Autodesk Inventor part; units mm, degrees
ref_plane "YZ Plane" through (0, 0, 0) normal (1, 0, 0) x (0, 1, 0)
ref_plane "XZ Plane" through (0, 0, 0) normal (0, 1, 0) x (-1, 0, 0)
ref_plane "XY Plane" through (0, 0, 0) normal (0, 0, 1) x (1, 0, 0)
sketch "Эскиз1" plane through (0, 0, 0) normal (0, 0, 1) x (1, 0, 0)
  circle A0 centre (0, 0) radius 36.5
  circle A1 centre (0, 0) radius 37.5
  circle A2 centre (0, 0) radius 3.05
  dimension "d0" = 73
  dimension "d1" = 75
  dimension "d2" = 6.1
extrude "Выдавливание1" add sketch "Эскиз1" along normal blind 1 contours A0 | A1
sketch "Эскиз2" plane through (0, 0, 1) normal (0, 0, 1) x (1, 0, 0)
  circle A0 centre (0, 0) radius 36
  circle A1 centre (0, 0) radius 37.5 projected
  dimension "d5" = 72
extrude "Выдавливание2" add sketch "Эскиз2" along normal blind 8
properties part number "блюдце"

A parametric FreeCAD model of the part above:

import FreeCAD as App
import Part
import Sketcher

V = App.Vector
Q = App.Units.Quantity

doc = App.newDocument("Part")
body = doc.addObject("PartDesign::Body", "Body")

sketch1 = body.newObject("Sketcher::SketchObject", "Sketch")
sketch1.AttachmentSupport = (doc.getObject("XY_Plane"), [""])
sketch1.MapMode = "FlatFace"
sketch1.addGeometry([
    Part.Circle(V(0, 0, 0), V(0, 0, 1), 37.5),
    Part.Circle(V(0, 0, 0), V(0, 0, 1), 3),
], False)
sketch1.addConstraint([
    Sketcher.Constraint("Coincident", 0, 3, -1, 1),
    Sketcher.Constraint("Coincident", 1, 3, -1, 1),
    Sketcher.Constraint("Diameter", 0, Q("75 mm")),
    Sketcher.Constraint("Diameter", 1, Q("6.1 mm")),
])
pad1 = body.newObject("PartDesign::Pad", "Pad")
pad1.Profile = sketch1
pad1.Length = 1

sketch2 = body.newObject("Sketcher::SketchObject", "Sketch001")
sketch2.AttachmentSupport = (doc.getObject("XY_Plane"), [""])
sketch2.MapMode = "FlatFace"
sketch2.AttachmentOffset = App.Placement(V(0, 0, 1), App.Rotation())
sketch2.addGeometry([
    Part.Circle(V(0, 0, 0), V(0, 0, 1), 38),
    Part.Circle(V(0, 0, 0), V(0, 0, 1), 36),
], False)
sketch2.addConstraint([
    Sketcher.Constraint("Coincident", 0, 3, -1, 1),
    Sketcher.Constraint("Coincident", 1, 3, -1, 1),
    Sketcher.Constraint("Diameter", 1, Q("72 mm")),
    Sketcher.Constraint("Diameter", 0, Q("75 mm")),
])
pad2 = body.newObject("PartDesign::Pad", "Pad001")
pad2.Profile = sketch2
pad2.Length = 8

doc.recompute()
